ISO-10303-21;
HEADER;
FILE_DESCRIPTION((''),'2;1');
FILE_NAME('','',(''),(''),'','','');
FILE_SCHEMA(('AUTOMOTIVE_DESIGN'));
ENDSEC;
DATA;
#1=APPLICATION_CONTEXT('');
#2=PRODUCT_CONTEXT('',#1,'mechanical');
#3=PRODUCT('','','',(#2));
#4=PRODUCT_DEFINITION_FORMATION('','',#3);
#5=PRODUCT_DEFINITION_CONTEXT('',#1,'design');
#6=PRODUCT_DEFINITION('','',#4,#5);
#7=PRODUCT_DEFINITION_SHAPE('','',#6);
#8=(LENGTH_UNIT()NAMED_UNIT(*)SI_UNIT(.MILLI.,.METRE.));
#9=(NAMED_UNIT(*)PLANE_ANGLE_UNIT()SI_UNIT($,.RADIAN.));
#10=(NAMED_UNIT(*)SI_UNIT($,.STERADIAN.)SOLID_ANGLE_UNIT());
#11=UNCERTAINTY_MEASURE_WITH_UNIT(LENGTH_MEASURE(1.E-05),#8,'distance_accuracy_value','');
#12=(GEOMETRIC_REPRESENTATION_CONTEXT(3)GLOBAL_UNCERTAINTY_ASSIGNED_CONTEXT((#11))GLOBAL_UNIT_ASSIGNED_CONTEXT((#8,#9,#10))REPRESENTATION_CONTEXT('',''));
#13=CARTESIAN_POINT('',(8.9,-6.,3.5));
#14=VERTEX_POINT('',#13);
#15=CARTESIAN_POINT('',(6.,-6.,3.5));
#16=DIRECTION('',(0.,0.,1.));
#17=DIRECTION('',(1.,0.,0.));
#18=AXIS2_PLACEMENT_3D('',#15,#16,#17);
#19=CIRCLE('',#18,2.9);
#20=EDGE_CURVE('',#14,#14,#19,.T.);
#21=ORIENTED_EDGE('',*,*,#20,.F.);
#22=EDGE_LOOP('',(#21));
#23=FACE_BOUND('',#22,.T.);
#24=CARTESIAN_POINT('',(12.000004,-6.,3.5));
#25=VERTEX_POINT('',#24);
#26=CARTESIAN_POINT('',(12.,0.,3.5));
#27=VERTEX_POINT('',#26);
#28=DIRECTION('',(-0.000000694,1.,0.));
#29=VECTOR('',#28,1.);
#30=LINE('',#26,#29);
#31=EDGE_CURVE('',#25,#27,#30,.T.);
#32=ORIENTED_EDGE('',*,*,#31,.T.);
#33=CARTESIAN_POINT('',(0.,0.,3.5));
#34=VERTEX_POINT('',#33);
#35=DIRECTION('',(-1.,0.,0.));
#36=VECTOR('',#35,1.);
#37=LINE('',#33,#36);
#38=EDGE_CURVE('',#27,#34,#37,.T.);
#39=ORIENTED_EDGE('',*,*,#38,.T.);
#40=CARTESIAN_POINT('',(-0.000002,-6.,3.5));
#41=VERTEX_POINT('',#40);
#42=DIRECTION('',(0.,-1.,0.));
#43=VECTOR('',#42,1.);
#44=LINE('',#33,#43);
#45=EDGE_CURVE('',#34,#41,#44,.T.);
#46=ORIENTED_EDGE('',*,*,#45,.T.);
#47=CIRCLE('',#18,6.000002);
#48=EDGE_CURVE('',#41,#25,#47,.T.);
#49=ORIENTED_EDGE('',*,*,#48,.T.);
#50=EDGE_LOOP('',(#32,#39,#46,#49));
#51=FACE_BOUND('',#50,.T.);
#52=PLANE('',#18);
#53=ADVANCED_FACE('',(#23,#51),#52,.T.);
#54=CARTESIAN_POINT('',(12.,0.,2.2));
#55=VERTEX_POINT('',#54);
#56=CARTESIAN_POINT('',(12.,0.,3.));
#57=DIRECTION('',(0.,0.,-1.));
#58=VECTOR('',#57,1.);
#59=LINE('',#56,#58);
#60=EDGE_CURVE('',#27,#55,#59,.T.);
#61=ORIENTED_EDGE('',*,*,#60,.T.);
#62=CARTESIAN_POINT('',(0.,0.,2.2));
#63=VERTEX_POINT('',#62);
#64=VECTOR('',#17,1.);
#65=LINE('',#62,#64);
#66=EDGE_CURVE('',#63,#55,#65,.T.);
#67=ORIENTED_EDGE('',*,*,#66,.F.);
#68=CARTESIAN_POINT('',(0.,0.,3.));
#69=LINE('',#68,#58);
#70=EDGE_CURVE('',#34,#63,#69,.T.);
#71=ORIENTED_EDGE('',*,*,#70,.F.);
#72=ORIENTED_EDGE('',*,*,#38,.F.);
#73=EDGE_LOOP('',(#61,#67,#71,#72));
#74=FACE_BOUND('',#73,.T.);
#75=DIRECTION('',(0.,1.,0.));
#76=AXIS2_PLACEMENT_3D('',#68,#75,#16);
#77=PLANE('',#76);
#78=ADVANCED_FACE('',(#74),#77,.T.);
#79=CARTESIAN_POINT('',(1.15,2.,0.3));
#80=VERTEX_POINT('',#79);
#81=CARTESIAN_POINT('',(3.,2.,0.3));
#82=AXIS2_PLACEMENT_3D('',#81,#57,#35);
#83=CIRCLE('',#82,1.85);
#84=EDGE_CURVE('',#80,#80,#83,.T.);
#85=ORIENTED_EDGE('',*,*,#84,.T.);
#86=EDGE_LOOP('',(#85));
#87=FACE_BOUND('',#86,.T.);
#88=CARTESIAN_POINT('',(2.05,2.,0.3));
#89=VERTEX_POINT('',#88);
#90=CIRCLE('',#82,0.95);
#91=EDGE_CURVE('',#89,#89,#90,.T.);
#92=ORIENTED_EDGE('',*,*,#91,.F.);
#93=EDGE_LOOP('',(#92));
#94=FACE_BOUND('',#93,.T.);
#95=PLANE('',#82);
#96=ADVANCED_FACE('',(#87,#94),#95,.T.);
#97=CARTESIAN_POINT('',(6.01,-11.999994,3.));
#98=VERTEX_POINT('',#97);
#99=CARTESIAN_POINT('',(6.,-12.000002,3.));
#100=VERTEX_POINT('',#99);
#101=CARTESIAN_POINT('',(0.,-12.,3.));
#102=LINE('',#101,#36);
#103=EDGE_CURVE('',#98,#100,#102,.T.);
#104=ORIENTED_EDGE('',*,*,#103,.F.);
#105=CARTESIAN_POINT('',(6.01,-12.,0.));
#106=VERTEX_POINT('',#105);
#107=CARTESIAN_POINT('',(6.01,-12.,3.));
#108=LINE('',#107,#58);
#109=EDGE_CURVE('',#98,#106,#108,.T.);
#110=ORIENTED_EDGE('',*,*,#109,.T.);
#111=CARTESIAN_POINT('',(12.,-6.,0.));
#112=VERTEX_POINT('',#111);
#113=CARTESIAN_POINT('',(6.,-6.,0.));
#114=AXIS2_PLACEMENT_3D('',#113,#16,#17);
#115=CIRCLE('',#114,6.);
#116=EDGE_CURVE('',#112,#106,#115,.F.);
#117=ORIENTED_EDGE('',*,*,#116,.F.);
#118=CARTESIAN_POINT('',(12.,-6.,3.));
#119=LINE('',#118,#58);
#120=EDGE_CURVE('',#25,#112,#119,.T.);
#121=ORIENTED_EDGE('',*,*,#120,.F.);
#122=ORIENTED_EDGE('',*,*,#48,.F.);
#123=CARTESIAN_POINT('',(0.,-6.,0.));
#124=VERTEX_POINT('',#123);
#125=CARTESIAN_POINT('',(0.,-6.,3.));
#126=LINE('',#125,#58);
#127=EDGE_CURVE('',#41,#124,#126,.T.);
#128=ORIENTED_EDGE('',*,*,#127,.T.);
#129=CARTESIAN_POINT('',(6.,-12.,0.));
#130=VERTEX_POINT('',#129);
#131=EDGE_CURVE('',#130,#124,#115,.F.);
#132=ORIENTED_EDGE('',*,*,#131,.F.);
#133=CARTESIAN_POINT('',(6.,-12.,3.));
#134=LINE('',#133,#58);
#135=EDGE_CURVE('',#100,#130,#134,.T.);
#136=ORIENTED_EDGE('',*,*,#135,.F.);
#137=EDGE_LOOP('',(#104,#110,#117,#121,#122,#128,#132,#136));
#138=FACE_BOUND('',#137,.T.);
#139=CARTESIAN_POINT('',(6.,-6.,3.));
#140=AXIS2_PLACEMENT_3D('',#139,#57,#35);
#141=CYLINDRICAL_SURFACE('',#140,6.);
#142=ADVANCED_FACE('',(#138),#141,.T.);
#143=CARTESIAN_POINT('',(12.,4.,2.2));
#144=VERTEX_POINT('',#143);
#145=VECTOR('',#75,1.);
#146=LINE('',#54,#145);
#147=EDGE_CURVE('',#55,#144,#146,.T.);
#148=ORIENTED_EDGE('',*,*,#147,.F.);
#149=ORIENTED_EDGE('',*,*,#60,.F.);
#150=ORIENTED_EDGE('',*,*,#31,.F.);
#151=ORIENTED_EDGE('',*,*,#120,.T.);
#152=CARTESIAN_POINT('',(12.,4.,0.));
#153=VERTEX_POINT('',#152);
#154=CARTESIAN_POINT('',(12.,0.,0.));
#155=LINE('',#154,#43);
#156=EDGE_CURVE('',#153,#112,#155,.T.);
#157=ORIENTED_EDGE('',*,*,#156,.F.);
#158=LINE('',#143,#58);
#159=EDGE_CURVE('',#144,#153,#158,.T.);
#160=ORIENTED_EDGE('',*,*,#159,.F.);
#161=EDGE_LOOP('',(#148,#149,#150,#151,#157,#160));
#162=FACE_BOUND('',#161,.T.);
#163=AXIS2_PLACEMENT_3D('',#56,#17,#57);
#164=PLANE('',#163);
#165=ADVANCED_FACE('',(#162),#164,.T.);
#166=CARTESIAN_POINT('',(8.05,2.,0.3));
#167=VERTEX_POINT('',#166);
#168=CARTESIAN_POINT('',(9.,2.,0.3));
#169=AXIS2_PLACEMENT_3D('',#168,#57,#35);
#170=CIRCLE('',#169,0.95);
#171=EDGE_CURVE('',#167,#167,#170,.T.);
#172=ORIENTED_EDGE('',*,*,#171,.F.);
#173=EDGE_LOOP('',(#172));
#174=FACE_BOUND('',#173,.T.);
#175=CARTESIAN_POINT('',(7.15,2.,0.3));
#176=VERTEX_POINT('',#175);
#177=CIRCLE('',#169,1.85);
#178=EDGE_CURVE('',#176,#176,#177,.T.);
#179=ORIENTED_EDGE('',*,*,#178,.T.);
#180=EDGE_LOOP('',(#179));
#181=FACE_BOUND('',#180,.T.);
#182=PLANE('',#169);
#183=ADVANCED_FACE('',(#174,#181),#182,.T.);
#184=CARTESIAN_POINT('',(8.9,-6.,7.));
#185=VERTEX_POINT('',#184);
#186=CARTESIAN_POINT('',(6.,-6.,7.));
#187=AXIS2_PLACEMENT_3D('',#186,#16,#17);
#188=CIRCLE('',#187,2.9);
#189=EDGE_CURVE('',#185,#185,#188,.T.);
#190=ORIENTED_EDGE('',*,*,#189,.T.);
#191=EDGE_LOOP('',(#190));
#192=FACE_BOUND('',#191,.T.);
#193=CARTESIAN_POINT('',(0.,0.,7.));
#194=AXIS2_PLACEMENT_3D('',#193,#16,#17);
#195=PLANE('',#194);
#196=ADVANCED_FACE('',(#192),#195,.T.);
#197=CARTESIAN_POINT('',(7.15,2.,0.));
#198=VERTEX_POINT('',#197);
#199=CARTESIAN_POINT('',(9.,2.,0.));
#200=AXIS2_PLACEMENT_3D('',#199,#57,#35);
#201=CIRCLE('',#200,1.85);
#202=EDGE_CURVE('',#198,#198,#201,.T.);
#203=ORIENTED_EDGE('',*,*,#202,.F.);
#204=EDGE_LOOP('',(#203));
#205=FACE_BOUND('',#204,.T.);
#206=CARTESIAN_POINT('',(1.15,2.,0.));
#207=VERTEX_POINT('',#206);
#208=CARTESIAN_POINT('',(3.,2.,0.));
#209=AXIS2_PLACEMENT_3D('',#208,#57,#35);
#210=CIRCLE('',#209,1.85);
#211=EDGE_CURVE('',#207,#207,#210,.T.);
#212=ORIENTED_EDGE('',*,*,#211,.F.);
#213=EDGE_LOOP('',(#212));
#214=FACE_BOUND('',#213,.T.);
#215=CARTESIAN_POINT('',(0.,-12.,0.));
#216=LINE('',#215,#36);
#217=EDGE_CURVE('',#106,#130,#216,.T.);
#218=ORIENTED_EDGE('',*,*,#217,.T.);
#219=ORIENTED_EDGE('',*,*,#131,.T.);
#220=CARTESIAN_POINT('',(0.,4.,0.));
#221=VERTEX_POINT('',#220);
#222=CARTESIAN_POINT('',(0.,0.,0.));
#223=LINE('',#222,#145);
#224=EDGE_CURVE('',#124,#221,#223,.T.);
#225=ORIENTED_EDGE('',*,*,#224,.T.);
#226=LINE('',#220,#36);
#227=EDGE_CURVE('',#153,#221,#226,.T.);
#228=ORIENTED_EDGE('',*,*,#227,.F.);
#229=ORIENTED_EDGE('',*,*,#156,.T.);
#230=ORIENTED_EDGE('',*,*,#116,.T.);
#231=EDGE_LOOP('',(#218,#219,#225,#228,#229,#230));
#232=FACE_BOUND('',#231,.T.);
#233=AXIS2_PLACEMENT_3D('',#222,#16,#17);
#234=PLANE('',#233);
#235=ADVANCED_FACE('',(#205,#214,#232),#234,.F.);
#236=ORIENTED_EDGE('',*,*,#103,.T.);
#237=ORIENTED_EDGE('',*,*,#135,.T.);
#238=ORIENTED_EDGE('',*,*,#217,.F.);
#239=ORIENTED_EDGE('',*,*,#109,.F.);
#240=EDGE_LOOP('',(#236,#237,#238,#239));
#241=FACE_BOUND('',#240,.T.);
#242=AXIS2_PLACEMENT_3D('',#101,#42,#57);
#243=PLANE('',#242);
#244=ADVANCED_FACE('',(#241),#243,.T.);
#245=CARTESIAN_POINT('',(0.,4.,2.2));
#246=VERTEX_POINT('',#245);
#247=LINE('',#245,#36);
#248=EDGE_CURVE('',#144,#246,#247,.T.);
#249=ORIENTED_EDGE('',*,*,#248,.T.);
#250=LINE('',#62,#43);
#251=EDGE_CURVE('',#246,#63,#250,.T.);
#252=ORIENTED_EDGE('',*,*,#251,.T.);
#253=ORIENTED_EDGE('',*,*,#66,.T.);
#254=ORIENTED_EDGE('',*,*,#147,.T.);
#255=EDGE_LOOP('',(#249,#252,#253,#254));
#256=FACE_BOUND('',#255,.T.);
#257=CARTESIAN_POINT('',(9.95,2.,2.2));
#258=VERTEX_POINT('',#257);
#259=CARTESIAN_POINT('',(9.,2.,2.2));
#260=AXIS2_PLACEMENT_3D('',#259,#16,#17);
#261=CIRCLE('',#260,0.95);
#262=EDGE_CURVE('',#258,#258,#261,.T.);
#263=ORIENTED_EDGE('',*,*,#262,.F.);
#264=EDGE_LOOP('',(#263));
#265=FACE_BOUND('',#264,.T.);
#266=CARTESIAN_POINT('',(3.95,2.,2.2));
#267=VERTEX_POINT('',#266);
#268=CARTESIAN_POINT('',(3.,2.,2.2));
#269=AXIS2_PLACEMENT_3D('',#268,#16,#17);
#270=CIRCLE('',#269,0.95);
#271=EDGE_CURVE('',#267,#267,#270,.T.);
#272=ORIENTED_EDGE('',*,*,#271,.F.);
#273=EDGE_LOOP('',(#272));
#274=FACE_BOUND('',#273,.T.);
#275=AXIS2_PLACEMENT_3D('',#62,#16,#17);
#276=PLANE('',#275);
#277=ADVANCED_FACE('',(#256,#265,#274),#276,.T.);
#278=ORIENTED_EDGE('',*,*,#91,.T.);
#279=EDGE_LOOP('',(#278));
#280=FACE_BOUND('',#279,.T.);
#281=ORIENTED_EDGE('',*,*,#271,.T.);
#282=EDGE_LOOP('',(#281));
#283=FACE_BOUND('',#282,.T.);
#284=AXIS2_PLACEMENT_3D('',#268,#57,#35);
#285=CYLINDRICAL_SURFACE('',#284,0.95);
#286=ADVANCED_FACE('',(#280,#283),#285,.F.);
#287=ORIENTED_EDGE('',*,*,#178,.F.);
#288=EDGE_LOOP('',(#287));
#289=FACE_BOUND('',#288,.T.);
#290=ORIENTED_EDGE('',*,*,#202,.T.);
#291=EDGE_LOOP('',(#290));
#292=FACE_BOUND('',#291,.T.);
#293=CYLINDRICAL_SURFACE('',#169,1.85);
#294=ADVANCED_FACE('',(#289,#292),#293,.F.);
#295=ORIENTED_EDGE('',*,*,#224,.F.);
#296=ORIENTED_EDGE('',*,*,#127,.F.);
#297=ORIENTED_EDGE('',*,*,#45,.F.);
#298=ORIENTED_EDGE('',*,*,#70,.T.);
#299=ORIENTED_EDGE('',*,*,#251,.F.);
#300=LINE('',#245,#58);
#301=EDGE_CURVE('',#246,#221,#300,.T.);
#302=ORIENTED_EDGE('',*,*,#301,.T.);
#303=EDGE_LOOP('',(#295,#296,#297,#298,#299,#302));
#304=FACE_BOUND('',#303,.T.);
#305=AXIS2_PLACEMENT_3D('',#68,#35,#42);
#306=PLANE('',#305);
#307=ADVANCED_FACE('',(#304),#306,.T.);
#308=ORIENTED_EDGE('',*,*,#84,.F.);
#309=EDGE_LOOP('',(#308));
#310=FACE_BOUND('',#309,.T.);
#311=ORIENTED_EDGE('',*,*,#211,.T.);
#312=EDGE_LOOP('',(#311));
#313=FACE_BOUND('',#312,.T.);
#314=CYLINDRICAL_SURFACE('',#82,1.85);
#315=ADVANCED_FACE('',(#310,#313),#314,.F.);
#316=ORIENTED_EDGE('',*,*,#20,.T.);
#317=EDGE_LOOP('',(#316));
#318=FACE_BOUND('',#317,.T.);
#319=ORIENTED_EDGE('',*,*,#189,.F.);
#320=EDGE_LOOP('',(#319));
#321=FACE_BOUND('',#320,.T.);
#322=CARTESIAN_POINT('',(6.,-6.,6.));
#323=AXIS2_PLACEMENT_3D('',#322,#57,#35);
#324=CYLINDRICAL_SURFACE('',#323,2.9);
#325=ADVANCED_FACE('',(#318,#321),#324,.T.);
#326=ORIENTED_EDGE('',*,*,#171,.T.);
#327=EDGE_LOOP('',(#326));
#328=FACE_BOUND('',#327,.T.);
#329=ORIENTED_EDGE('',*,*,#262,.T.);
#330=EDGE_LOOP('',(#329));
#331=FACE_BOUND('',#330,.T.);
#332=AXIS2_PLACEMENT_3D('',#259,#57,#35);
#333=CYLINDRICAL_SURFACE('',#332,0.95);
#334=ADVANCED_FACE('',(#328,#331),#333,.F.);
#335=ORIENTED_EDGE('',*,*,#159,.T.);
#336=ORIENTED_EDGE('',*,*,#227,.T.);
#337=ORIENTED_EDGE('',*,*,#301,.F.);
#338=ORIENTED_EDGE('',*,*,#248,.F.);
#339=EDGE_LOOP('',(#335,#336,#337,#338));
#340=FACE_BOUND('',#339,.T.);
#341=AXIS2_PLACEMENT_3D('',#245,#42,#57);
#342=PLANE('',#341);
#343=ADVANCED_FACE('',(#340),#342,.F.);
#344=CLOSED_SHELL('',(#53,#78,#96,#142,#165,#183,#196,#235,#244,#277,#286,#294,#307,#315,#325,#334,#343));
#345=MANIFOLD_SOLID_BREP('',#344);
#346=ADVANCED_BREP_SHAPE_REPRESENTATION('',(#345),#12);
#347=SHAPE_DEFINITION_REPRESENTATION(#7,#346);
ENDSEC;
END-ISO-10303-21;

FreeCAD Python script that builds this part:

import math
import FreeCAD as App
import Part
import Sketcher


def add_polygon(sketch, points):
    """Adds a closed chain of lines whose ends are joined by coincident constraints."""
    first, n = sketch.GeometryCount, len(points)
    for a, b in zip(points, points[1:] + points[:1]):
        sketch.addGeometry(Part.LineSegment(App.Vector(*a, 0), App.Vector(*b, 0)), False)
    for i in range(n):
        sketch.addConstraint(Sketcher.Constraint("Coincident", first + i, 2, first + (i + 1) % n, 1))

doc = App.newDocument("Part")
params = doc.addObject("Spreadsheet::Sheet", "Params")
for row, (alias, value) in enumerate([
    ("sketch1_radius", "6 mm"),
    ("sketch1_diameter", "5.8 mm"),
    ("sketch1_height", "6 mm"),
    ("pad1_length", "3 mm"),
    ("sketch2_diameter", "1.9 mm"),
    ("sketch2_width", "12 mm"),
    ("sketch2_height", "4 mm"),
    ("pad2_length", "2.2 mm"),
    ("sketch3_diameter", "5.8 mm"),
    ("pad3_length", "6 mm"),
    ("sketch4_diameter", "3.7 mm"),
    ("pocket1_length", "0.3 mm"),
    ("sketch5_width", "12 mm"),
    ("sketch5_height", "6 mm"),
    ("pad4_length", "0.5 mm"),
    ("sketch6_diameter", "5.8 mm"),
    ("pad5_length", "7 mm"),
], start=1):
    params.set(f"A{row}", alias)
    params.set(f"B{row}", "=" + value)
    params.setAlias(f"B{row}", alias)

body = doc.addObject("PartDesign::Body", "Body")

sketch1 = body.newObject("Sketcher::SketchObject", "Sketch")
sketch1.AttachmentSupport = (doc.getObject("XY_Plane"), [""])
sketch1.MapMode = "FlatFace"
sketch1.addGeometry([
    Part.LineSegment(App.Vector(12, 0, 0), App.Vector(0, 0, 0)),
    Part.LineSegment(App.Vector(0, 0, 0), App.Vector(0, -6, 0)),
    Part.ArcOfCircle(Part.Circle(App.Vector(6, -6, 0), App.Vector(0, 0, 1), 6), math.radians(180), math.radians(360)),
    Part.LineSegment(App.Vector(12, -6, 0), App.Vector(12, 0, 0)),
    Part.Circle(App.Vector(6, -6, 0), App.Vector(0, 0, 1), 2.9),
], False)
sketch1.addConstraint([
    Sketcher.Constraint("Coincident", 0, 2, 1, 1),
    Sketcher.Constraint("Tangent", 1, 2, 2, 1),
    Sketcher.Constraint("Tangent", 2, 2, 3, 1),
    Sketcher.Constraint("Coincident", 3, 2, 0, 1),
    Sketcher.Constraint("Horizontal", 0),
    Sketcher.Constraint("Vertical", 1),
    Sketcher.Constraint("Vertical", 3),
    Sketcher.Constraint("Coincident", 0, 2, -1, 1),
    Sketcher.Constraint("Coincident", 4, 3, 2, 3),
    Sketcher.Constraint("Radius", 2, 6.0),
    Sketcher.Constraint("Diameter", 4, 5.8),
    Sketcher.Constraint("DistanceY", 1, 2, 1, 1, 6.0),
])
sketch1.setExpression("Constraints[9]", "Params.sketch1_radius")
sketch1.setExpression("Constraints[10]", "Params.sketch1_diameter")
sketch1.setExpression("Constraints[11]", "Params.sketch1_height")
pad1 = body.newObject("PartDesign::Pad", "Pad")
pad1.Profile = sketch1
pad1.setExpression("Length", "Params.pad1_length")

sketch2 = body.newObject("Sketcher::SketchObject", "Sketch001")
sketch2.AttachmentSupport = (doc.getObject("XY_Plane"), [""])
sketch2.MapMode = "FlatFace"
add_polygon(sketch2, [(0, 4), (0, 0), (12, 0), (12, 4)])
sketch2.addGeometry(Part.Circle(App.Vector(3, 2, 0), App.Vector(0, 0, 1), 0.9), False)
sketch2.addGeometry(Part.Circle(App.Vector(9, 2, 0), App.Vector(0, 0, 1), 0.9), False)
sketch2.addConstraint([
    Sketcher.Constraint("Vertical", 0),
    Sketcher.Constraint("Horizontal", 1),
    Sketcher.Constraint("Vertical", 2),
    Sketcher.Constraint("Horizontal", 3),
    Sketcher.Constraint("Coincident", 0, 2, -1, 1),
    Sketcher.Constraint("Equal", 4, 5),
    Sketcher.Constraint("Horizontal", 4, 3, 5, 3),
    Sketcher.Constraint("Diameter", 4, 1.9),
    Sketcher.Constraint("DistanceX", 1, 1, 1, 2, 12.0),
    Sketcher.Constraint("DistanceY", 0, 2, 0, 1, 4.0),
    Sketcher.Constraint("DistanceX", -1, 1, 4, 3, 3.0),
    Sketcher.Constraint("DistanceY", -1, 1, 4, 3, 2.0),
    Sketcher.Constraint("DistanceX", -1, 1, 5, 3, 9.0),
])
sketch2.setExpression("Constraints[11]", "Params.sketch2_diameter")
sketch2.setExpression("Constraints[12]", "Params.sketch2_width")
sketch2.setExpression("Constraints[13]", "Params.sketch2_height")
pad2 = body.newObject("PartDesign::Pad", "Pad001")
pad2.Profile = sketch2
pad2.setExpression("Length", "Params.pad2_length")

sketch3 = body.newObject("Sketcher::SketchObject", "Sketch002")
sketch3.AttachmentSupport = (doc.getObject("XY_Plane"), [""])
sketch3.MapMode = "FlatFace"
sketch3.addGeometry(Part.Circle(App.Vector(6, -6, 0), App.Vector(0, 0, 1), 2.9), False)
sketch3.addConstraint([
    Sketcher.Constraint("Diameter", 0, 5.8),
    Sketcher.Constraint("DistanceX", -1, 1, 0, 3, 6.0),
    Sketcher.Constraint("DistanceY", 0, 3, -1, 1, 6.0),
])
sketch3.setExpression("Constraints[0]", "Params.sketch3_diameter")
pad3 = body.newObject("PartDesign::Pad", "Pad002")
pad3.Profile = sketch3
pad3.setExpression("Length", "Params.pad3_length")

sketch4 = body.newObject("Sketcher::SketchObject", "Sketch003")
sketch4.AttachmentSupport = (doc.getObject("XY_Plane"), [""])
sketch4.MapMode = "FlatFace"
sketch4.addGeometry([
    Part.Circle(App.Vector(9, 2, 0), App.Vector(0, 0, 1), 1.9),
    Part.Circle(App.Vector(3, 2, 0), App.Vector(0, 0, 1), 1.9),
], False)
sketch4.addConstraint([
    Sketcher.Constraint("Equal", 0, 1),
    Sketcher.Constraint("Horizontal", 0, 3, 1, 3),
    Sketcher.Constraint("Diameter", 0, 3.7),
    Sketcher.Constraint("DistanceX", -1, 1, 0, 3, 9.0),
    Sketcher.Constraint("DistanceY", -1, 1, 0, 3, 2.0),
    Sketcher.Constraint("DistanceX", -1, 1, 1, 3, 3.0),
])
sketch4.setExpression("Constraints[2]", "Params.sketch4_diameter")
pocket1 = body.newObject("PartDesign::Pocket", "Pocket")
pocket1.Profile = sketch4
pocket1.setExpression("Length", "Params.pocket1_length")
pocket1.Reversed = True

sketch5 = body.newObject("Sketcher::SketchObject", "Sketch004")
sketch5.AttachmentSupport = (doc.getObject("XY_Plane"), [""])
sketch5.MapMode = "FlatFace"
sketch5.AttachmentOffset = App.Placement(App.Vector(0, 0, 3), App.Rotation())
sketch5.addGeometry([
    Part.LineSegment(App.Vector(12, 0, 0), App.Vector(0, 0, 0)),
    Part.LineSegment(App.Vector(0, 0, 0), App.Vector(0, -6, 0)),
    Part.ArcOfCircle(Part.Circle(App.Vector(6, -6, 0), App.Vector(0, 0, 1), 6), math.radians(-180), math.radians(0)),
    Part.LineSegment(App.Vector(12, -6, 0), App.Vector(12, 0, 0)),
], False)
sketch5.addConstraint([
    Sketcher.Constraint("Coincident", 0, 2, 1, 1),
    Sketcher.Constraint("Tangent", 1, 2, 2, 1),
    Sketcher.Constraint("Tangent", 2, 2, 3, 1),
    Sketcher.Constraint("Coincident", 3, 2, 0, 1),
    Sketcher.Constraint("Horizontal", 0),
    Sketcher.Constraint("Vertical", 1),
    Sketcher.Constraint("Coincident", 0, 2, -1, 1),
    Sketcher.Constraint("Horizontal", 1, 2, 2, 2),
    Sketcher.Constraint("DistanceX", 0, 2, 0, 1, 12.0),
    Sketcher.Constraint("DistanceY", 1, 2, 1, 1, 6.0),
])
sketch5.setExpression("Constraints[8]", "Params.sketch5_width")
sketch5.setExpression("Constraints[9]", "Params.sketch5_height")
pad4 = body.newObject("PartDesign::Pad", "Pad003")
pad4.Profile = sketch5
pad4.setExpression("Length", "Params.pad4_length")

sketch6 = body.newObject("Sketcher::SketchObject", "Sketch005")
sketch6.AttachmentSupport = (doc.getObject("XY_Plane"), [""])
sketch6.MapMode = "FlatFace"
sketch6.addGeometry(Part.Circle(App.Vector(6, -6, 0), App.Vector(0, 0, 1), 2.9), False)
sketch6.addConstraint([
    Sketcher.Constraint("Diameter", 0, 5.8),
    Sketcher.Constraint("DistanceX", -1, 1, 0, 3, 6.0),
    Sketcher.Constraint("DistanceY", 0, 3, -1, 1, 6.0),
])
sketch6.setExpression("Constraints[0]", "Params.sketch6_diameter")
pad5 = body.newObject("PartDesign::Pad", "Pad004")
pad5.Profile = sketch6
pad5.setExpression("Length", "Params.pad5_length")

doc.recompute()
